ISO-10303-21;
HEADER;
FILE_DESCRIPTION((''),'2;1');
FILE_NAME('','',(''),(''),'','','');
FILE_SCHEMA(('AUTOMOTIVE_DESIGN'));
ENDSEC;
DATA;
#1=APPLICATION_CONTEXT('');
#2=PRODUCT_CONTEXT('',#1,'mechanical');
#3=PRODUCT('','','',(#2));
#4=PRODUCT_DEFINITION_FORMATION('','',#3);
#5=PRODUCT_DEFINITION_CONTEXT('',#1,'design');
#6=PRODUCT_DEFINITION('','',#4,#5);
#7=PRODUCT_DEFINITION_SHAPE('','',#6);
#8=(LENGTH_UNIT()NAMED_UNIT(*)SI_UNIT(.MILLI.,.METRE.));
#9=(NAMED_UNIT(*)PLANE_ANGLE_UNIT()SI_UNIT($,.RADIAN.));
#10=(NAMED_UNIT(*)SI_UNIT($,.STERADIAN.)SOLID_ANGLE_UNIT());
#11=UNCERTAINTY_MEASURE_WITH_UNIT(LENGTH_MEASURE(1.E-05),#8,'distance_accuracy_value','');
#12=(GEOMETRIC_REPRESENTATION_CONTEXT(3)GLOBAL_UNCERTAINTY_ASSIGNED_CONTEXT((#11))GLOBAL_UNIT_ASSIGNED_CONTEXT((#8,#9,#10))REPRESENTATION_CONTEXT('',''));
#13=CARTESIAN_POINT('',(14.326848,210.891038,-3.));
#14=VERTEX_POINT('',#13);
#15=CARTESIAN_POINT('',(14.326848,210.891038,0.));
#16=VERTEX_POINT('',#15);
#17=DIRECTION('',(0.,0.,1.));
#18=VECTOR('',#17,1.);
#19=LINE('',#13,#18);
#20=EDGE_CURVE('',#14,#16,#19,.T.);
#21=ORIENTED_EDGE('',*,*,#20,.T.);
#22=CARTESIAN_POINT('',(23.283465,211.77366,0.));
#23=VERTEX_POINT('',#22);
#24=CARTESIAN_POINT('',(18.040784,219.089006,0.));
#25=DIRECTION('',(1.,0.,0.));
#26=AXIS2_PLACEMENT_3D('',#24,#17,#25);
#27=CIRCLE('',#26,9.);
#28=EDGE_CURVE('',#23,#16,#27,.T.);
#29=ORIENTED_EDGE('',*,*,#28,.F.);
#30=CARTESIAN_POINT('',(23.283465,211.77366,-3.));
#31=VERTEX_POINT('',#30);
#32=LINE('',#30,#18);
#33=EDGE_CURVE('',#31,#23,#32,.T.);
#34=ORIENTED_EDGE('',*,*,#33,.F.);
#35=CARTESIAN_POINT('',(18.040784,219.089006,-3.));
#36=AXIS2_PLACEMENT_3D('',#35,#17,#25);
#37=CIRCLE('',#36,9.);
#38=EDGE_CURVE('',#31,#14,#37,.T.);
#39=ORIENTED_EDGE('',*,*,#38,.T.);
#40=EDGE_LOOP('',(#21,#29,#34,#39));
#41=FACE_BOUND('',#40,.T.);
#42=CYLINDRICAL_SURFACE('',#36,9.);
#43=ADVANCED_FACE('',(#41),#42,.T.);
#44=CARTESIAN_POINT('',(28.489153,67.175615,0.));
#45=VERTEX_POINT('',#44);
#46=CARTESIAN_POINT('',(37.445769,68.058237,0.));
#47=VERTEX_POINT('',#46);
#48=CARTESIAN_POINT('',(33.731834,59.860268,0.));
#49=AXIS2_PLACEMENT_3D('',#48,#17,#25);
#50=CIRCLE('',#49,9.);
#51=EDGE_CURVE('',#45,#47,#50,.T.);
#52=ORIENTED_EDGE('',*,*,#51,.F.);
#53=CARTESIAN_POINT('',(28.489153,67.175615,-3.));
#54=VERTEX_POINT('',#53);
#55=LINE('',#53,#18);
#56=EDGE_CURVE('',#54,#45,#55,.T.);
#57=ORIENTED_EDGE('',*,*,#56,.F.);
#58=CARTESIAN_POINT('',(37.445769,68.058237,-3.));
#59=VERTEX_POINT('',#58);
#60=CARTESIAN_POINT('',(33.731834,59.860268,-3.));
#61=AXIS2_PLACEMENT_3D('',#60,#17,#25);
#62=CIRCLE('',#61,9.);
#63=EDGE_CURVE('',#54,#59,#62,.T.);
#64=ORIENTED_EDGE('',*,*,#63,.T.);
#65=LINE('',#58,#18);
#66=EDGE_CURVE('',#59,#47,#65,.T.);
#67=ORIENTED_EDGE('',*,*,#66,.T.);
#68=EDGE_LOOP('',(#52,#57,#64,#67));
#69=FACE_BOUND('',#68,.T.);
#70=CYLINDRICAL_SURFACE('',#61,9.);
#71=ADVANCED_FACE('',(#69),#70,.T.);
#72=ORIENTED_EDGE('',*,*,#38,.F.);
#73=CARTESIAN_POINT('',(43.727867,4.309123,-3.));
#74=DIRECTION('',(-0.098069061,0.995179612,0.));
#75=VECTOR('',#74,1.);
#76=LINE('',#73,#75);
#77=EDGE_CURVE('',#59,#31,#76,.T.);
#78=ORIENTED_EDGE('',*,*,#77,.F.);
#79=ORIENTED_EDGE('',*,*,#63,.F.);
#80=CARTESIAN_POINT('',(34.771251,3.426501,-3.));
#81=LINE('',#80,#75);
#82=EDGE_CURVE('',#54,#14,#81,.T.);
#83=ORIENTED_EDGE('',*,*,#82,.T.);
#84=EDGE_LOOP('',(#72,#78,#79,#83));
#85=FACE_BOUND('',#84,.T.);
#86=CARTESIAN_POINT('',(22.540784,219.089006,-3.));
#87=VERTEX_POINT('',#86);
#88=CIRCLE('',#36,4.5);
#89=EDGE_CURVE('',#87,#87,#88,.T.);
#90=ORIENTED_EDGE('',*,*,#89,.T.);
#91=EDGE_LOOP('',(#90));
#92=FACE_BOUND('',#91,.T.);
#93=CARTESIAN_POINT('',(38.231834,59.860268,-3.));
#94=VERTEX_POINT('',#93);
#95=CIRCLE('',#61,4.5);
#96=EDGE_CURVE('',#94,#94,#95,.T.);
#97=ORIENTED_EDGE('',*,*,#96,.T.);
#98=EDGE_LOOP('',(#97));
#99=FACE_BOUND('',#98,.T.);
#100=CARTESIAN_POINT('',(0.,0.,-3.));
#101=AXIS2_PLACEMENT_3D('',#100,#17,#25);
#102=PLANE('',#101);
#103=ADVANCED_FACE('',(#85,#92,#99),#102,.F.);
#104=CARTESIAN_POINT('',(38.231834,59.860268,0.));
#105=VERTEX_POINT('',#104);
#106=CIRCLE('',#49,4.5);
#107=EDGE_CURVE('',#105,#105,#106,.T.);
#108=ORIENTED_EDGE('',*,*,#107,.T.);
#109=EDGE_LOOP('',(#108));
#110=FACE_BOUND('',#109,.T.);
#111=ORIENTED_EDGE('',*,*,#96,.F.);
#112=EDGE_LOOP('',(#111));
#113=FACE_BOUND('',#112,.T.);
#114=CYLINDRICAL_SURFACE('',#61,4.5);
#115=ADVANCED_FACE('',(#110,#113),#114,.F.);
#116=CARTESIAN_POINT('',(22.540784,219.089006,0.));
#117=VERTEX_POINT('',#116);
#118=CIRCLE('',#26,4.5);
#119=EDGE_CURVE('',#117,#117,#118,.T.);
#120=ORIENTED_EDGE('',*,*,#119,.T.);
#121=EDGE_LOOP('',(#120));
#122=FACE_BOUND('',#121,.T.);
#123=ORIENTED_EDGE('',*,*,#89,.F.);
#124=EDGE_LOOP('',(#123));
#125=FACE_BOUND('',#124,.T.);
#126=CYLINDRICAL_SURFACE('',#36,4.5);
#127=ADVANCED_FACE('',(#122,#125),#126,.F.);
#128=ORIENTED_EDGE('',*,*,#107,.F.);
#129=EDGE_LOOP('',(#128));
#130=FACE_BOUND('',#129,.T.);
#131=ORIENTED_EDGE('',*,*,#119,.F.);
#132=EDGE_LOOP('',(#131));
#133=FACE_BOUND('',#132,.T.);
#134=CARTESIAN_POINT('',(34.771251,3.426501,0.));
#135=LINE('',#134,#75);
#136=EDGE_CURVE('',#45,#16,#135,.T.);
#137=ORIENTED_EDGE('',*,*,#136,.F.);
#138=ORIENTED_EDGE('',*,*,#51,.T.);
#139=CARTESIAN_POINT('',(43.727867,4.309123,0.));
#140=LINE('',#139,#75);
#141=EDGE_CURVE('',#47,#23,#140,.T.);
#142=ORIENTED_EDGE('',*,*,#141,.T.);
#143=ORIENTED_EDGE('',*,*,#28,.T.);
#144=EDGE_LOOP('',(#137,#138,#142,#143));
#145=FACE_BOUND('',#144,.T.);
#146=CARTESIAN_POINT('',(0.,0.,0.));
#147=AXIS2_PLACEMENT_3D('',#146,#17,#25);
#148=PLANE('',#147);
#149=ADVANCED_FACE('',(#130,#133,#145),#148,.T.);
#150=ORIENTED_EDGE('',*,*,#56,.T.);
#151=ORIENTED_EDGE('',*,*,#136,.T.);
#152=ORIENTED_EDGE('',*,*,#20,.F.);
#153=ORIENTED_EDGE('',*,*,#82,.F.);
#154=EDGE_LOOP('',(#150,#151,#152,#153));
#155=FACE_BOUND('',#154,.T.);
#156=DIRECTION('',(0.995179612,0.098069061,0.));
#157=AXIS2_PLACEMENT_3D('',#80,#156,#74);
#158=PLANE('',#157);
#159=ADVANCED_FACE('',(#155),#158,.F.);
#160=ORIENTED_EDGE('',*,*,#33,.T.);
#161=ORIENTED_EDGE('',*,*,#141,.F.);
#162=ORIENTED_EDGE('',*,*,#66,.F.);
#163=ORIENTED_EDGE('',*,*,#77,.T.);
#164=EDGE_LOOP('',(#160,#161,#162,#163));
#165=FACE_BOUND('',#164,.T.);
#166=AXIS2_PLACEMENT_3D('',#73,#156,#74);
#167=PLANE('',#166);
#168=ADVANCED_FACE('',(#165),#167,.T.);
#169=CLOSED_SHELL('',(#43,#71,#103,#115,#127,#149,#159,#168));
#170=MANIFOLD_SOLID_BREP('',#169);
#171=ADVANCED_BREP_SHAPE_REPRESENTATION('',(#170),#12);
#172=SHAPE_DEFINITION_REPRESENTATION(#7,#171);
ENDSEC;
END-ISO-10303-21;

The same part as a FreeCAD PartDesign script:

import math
import FreeCAD as App
import Part
import Sketcher
from FreeCAD import Vector
Q = App.Units.Quantity

doc = App.newDocument("Part")
params = doc.addObject("Spreadsheet::Sheet", "Params")
for row, (alias, value) in enumerate([
    ("sketch1_diameter", "9 mm"),
    ("sketch1_radius", "9 mm"),
    ("pad1_length", "3 mm"),
], start=1):
    params.set(f"A{row}", alias)
    params.set(f"B{row}", "=" + value)
    params.setAlias(f"B{row}", alias)

body = doc.addObject("PartDesign::Body", "Body")

# Sketch on XY plane
sketch1 = body.newObject("Sketcher::SketchObject", "Sketch")
sketch1.AttachmentSupport = (doc.getObject("XY_Plane"), [""])
sketch1.MapMode = "FlatFace"
sketch1.addGeometry([
    Part.ArcOfCircle(Part.Circle(Vector(18.040784, 219.089006, 0), Vector(0, 0, 1), 9), math.radians(0), math.radians(245.627989)),  # 0
    Part.LineSegment(Vector(14.326848, 210.891038, 0), Vector(28.489153, 67.175615, 0)),  # 1
    Part.ArcOfCircle(Part.Circle(Vector(33.731834, 59.860268, 0), Vector(0, 0, 1), 9), math.radians(125.627989), math.radians(360)),  # 2
    Part.ArcOfCircle(Part.Circle(Vector(33.731834, 59.860268, 0), Vector(0, 0, 1), 9), math.radians(0), math.radians(65.627989)),  # 3
    Part.LineSegment(Vector(37.445769, 68.058237, 0), Vector(23.283465, 211.77366, 0)),  # 4
    Part.ArcOfCircle(Part.Circle(Vector(18.040784, 219.089006, 0), Vector(0, 0, 1), 9), math.radians(-54.372011), math.radians(0)),  # 5
    Part.Circle(Vector(18.040784, 219.089006, 0), Vector(0, 0, 1), 4.5),  # 6
    Part.ArcOfCircle(Part.Circle(Vector(33.731834, 59.860268, 0), Vector(0, 0, 1), 4.5), math.radians(5.627989), math.radians(185.627989)),  # 7
    Part.ArcOfCircle(Part.Circle(Vector(33.731834, 59.860268, 0), Vector(0, 0, 1), 4.5), math.radians(-174.372011), math.radians(5.627989)),  # 8
], False)
sketch1.addConstraint([
    Sketcher.Constraint("Coincident", 0, 2, 1, 1),
    Sketcher.Constraint("Coincident", 1, 2, 2, 1),
    Sketcher.Constraint("Tangent", 2, 2, 3, 1),
    Sketcher.Constraint("Coincident", 3, 2, 4, 1),
    Sketcher.Constraint("Coincident", 4, 2, 5, 1),
    Sketcher.Constraint("Tangent", 5, 2, 0, 1),
    Sketcher.Constraint("Tangent", 7, 1, 8, 2),
    Sketcher.Constraint("Coincident", 8, 1, 7, 2),
    Sketcher.Constraint("Coincident", 6, 3, 0, 3),
    Sketcher.Constraint("Coincident", 7, 3, 2, 3),
    Sketcher.Constraint("Equal", 0, 2),
    Sketcher.Constraint("Equal", 2, 3),
    Sketcher.Constraint("Equal", 3, 5),
    Sketcher.Constraint("Equal", 6, 7),
    Sketcher.Constraint("Parallel", 1, 4),
    Sketcher.Constraint("Horizontal", 8, 3, 2, 2),
    Sketcher.Constraint("Horizontal", 6, 3, 5, 2),
    Sketcher.Constraint("Equal", 1, 4),
    Sketcher.Constraint("Diameter", 6, Q("9 mm")),
    Sketcher.Constraint("Radius", 0, Q("9 mm")),
    Sketcher.Constraint("DistanceY", -1, 1, 2, 3, Q("59.860268 mm")),
    Sketcher.Constraint("DistanceX", -1, 1, 0, 2, Q("14.326848 mm")),
    Sketcher.Constraint("DistanceY", -1, 1, 0, 2, Q("210.891038 mm")),
    Sketcher.Constraint("DistanceX", -1, 1, 3, 2, Q("37.445769 mm")),
    Sketcher.Constraint("DistanceY", -1, 1, 4, 2, Q("211.77366 mm")),
    Sketcher.Constraint("DistanceY", -1, 1, 7, 1, Q("60.301579 mm")),
    Sketcher.Constraint("DistanceX", 0, 3, 2, 3, Q("15.69105 mm")),
    Sketcher.Constraint("DistanceX", 8, 1, 2, 3, Q("4.478308 mm")),
])
sketch1.setExpression("Constraints[18]", "Params.sketch1_diameter")
sketch1.setExpression("Constraints[19]", "Params.sketch1_radius")
pad1 = body.newObject("PartDesign::Pad", "Pad")
pad1.Profile = sketch1
pad1.setExpression("Length", "Params.pad1_length")
pad1.Reversed = True

doc.recompute()
